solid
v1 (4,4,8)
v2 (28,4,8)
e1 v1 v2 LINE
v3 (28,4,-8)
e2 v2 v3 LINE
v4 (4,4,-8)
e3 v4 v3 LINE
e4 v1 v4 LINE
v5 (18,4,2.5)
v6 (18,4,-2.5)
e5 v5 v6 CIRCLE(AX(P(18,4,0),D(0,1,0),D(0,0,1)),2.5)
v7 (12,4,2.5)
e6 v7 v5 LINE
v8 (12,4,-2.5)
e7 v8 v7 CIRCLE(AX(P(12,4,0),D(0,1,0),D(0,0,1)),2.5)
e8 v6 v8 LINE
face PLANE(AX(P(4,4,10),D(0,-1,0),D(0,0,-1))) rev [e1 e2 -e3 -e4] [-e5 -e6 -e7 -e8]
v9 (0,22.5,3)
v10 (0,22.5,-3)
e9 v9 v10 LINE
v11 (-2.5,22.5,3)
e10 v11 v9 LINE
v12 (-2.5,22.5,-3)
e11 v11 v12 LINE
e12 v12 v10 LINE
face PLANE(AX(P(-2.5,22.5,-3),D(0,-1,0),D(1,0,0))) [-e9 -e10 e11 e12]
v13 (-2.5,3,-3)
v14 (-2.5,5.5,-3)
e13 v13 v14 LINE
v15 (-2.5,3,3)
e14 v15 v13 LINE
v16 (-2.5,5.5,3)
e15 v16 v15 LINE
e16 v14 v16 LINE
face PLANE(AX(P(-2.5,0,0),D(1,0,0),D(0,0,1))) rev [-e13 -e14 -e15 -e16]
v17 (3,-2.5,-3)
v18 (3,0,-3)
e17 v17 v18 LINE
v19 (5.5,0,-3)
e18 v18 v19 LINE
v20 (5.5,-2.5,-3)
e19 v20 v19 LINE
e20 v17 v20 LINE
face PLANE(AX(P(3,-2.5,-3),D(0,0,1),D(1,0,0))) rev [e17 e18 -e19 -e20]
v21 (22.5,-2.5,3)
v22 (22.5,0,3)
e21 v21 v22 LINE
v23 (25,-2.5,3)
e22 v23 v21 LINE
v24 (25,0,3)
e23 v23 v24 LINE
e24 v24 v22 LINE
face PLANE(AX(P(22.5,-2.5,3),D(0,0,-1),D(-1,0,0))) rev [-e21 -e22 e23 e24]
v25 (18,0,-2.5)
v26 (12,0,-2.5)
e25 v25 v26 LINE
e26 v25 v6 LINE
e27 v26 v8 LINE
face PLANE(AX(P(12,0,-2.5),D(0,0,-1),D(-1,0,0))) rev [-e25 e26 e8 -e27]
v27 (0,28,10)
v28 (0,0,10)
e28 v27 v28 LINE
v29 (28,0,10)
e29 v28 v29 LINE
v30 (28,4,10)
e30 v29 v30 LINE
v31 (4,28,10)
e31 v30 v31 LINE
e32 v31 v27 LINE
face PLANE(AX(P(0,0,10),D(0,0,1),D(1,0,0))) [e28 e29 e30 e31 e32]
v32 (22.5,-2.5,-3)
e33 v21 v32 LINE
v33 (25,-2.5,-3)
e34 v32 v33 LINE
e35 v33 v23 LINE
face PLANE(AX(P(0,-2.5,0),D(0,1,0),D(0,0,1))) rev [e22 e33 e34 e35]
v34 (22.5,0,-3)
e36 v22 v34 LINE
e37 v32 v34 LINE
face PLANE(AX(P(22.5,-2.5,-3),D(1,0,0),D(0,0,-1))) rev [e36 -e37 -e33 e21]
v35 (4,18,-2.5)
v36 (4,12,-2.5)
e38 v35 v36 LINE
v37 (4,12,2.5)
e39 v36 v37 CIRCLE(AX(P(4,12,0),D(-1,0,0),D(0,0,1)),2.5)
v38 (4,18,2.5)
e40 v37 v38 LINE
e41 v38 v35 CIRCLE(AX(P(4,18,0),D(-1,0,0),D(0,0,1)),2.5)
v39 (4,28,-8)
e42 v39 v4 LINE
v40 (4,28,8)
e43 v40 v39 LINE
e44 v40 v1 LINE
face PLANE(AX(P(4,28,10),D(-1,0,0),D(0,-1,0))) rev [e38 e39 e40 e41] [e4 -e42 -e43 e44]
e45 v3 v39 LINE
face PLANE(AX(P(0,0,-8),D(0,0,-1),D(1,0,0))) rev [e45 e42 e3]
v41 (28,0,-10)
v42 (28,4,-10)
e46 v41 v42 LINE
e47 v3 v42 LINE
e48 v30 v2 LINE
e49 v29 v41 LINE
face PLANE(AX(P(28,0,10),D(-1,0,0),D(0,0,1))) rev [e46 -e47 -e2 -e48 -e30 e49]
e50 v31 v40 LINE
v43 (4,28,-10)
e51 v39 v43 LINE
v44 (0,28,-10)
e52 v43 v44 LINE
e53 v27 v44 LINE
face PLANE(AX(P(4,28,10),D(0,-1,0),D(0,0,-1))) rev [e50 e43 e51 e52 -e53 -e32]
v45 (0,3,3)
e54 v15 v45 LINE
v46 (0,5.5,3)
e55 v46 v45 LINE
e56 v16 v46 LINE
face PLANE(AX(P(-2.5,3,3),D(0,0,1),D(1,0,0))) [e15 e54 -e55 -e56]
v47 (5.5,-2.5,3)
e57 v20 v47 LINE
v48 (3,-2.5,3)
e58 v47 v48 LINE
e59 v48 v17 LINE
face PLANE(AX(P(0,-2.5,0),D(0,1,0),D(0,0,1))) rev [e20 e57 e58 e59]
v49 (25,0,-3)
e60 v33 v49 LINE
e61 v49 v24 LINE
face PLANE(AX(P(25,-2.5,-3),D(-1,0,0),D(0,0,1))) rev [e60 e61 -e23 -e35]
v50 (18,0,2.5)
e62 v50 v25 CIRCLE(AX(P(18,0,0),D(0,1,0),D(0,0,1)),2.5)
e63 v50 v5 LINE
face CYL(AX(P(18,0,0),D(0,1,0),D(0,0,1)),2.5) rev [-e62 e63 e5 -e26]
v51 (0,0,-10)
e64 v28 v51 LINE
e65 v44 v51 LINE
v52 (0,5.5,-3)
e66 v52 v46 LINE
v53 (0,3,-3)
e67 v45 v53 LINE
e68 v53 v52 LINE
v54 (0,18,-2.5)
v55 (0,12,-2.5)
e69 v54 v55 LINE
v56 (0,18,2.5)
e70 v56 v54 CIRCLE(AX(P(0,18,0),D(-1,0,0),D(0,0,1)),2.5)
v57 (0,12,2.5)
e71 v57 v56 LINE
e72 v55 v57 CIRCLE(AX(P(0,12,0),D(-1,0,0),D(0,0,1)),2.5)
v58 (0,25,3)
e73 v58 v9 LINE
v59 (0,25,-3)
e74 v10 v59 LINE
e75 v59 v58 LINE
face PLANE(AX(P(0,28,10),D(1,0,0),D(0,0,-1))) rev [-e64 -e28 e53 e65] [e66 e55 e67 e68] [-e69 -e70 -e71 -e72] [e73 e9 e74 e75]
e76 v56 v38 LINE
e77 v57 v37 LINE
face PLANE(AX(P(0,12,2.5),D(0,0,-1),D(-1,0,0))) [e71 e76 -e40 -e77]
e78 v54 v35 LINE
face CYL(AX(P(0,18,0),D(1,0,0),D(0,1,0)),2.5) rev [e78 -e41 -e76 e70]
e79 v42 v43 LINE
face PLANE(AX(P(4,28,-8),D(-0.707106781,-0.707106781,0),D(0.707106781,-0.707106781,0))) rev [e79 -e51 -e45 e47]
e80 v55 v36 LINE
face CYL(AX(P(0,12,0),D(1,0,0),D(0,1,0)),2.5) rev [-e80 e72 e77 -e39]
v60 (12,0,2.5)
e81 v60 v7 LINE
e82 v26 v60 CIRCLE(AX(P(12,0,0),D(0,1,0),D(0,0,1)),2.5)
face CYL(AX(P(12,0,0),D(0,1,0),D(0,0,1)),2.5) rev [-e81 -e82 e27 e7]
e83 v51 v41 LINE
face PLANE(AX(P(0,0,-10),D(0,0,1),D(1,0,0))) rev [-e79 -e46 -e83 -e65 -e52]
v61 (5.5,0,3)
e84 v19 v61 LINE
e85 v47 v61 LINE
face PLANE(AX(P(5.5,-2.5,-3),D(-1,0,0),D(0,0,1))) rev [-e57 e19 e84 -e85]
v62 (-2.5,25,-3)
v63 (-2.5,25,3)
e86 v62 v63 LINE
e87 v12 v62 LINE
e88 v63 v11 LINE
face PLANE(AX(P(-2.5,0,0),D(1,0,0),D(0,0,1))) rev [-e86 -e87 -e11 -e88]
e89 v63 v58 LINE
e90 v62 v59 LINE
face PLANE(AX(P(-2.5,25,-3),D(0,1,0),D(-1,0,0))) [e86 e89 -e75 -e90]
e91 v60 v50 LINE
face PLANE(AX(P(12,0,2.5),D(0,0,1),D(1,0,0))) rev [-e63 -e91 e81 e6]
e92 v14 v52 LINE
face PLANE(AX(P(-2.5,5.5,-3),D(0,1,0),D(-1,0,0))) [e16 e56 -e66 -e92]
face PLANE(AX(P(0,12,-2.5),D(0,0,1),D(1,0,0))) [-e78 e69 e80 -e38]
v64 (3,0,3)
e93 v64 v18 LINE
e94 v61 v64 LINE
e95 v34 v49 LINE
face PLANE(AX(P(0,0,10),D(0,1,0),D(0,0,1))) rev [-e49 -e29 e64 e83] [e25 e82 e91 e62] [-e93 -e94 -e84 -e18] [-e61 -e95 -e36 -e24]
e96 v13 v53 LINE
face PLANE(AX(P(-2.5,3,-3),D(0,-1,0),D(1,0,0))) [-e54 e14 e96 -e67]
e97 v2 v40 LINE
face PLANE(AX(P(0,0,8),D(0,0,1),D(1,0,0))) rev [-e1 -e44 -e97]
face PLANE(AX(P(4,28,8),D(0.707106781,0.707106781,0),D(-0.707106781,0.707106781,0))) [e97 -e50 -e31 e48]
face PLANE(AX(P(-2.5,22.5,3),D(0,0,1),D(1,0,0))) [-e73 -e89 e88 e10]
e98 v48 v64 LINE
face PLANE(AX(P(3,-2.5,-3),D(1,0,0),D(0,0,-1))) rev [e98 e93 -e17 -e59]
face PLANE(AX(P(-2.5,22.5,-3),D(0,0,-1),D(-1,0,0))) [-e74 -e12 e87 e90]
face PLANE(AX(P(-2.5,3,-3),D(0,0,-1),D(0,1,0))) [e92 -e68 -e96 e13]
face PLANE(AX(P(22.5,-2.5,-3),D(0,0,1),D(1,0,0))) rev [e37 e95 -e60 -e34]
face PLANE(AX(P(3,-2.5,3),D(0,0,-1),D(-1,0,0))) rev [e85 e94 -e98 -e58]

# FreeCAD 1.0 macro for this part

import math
import FreeCAD as App
import Part
import Sketcher

V = App.Vector
Q = App.Units.Quantity


def add_polygon(sketch, points):
    """Adds a closed chain of lines whose ends are joined by coincident constraints."""
    first, n = sketch.GeometryCount, len(points)
    for a, b in zip(points, points[1:] + points[:1]):
        sketch.addGeometry(Part.LineSegment(App.Vector(*a, 0), App.Vector(*b, 0)), False)
    for i in range(n):
        sketch.addConstraint(Sketcher.Constraint("Coincident", first + i, 2, first + (i + 1) % n, 1))

doc = App.newDocument("Part")
body = doc.addObject("PartDesign::Body", "Body")

# Sketch on XY plane
sketch1 = body.newObject("Sketcher::SketchObject", "Sketch")
sketch1.AttachmentSupport = (doc.getObject("XY_Plane"), [""])
sketch1.MapMode = "FlatFace"
add_polygon(sketch1, [(0, 28), (0, 0), (28, 0), (28, 4), (4, 4), (4, 28)])  # lines 0-5
sketch1.addConstraint([
    Sketcher.Constraint("Vertical", 0),
    Sketcher.Constraint("Horizontal", 1),
    Sketcher.Constraint("Vertical", 2),
    Sketcher.Constraint("Horizontal", 3),
    Sketcher.Constraint("Vertical", 4),
    Sketcher.Constraint("Horizontal", 5),
    Sketcher.Constraint("Coincident", 0, 2, -1, 1),
    Sketcher.Constraint("Equal", 1, 0),
    Sketcher.Constraint("Equal", 5, 2),
    Sketcher.Constraint("DistanceX", 1, 1, 1, 2, Q("28 mm")),
    Sketcher.Constraint("DistanceX", 3, 2, 3, 1, Q("24 mm")),
])
pad1 = body.newObject("PartDesign::Pad", "Pad")
pad1.Profile = sketch1
pad1.Length = 20
pad1.Midplane = True

# Sketch on XY plane
sketch2 = body.newObject("Sketcher::SketchObject", "Sketch001")
sketch2.AttachmentSupport = (doc.getObject("XY_Plane"), [""])
sketch2.MapMode = "FlatFace"
sketch2.AttachmentOffset = App.Placement(V(0, 0, 10), App.Rotation())
add_polygon(sketch2, [(28, 4), (4, 28), (4, 4)])  # lines 0-2
sketch2.addConstraint([
    Sketcher.Constraint("Vertical", 1),
    Sketcher.Constraint("Horizontal", 2),
    Sketcher.Constraint("Equal", 2, 1),
    Sketcher.Constraint("DistanceX", 2, 1, 2, 2, Q("24 mm")),
    Sketcher.Constraint("DistanceX", -1, 1, 0, 2, Q("4 mm")),
    Sketcher.Constraint("DistanceY", -1, 1, 0, 2, Q("28 mm")),
])
pad2 = body.newObject("PartDesign::Pad", "Pad001")
pad2.Profile = sketch2
pad2.Length = 2
pad2.Reversed = True
doc.recompute()

mirrored = body.newObject("PartDesign::Mirrored", "Mirrored")
mirrored.Originals = [pad2]
mirrored.MirrorPlane = (doc.getObject("XY_Plane"), [""])
body.Tip = mirrored

# Sketch on XZ plane
sketch3 = body.newObject("Sketcher::SketchObject", "Sketch002")
sketch3.AttachmentSupport = (doc.getObject("XZ_Plane"), [""])
sketch3.MapMode = "FlatFace"
sketch3.AttachmentOffset = App.Placement(V(0, 0, -4), App.Rotation())
sketch3.addGeometry([
    Part.LineSegment(V(18, -2.5, 0), V(12, -2.5, 0)),
    Part.ArcOfCircle(Part.Circle(V(12, 0, 0), V(0, 0, 1), 2.5), math.radians(90), math.radians(270)),
    Part.LineSegment(V(12, 2.5, 0), V(18, 2.5, 0)),
    Part.ArcOfCircle(Part.Circle(V(18, 0, 0), V(0, 0, 1), 2.5), math.radians(-90), math.radians(90)),
], False)
sketch3.addConstraint([
    Sketcher.Constraint("Tangent", 0, 2, 1, 2),
    Sketcher.Constraint("Tangent", 1, 1, 2, 1),
    Sketcher.Constraint("Tangent", 2, 2, 3, 2),
    Sketcher.Constraint("Tangent", 3, 1, 0, 1),
    Sketcher.Constraint("Horizontal", 0),
    Sketcher.Constraint("Horizontal", 2),
    Sketcher.Constraint("PointOnObject", 1, 3, -1),
    Sketcher.Constraint("Radius", 1, Q("2.5 mm")),
    Sketcher.Constraint("DistanceX", 0, 2, 0, 1, Q("6 mm")),
    Sketcher.Constraint("DistanceX", -1, 1, 1, 3, Q("12 mm")),
])
pocket1 = body.newObject("PartDesign::Pocket", "Pocket")
pocket1.Profile = sketch3
pocket1.Type = "ThroughAll"
pocket1.Reversed = True

# Sketch on XZ plane
sketch4 = body.newObject("Sketcher::SketchObject", "Sketch003")
sketch4.AttachmentSupport = (doc.getObject("XZ_Plane"), [""])
sketch4.MapMode = "FlatFace"
add_polygon(sketch4, [(3, 3), (3, -3), (5.5, -3), (5.5, 3)])  # lines 0-3
add_polygon(sketch4, [(22.5, 3), (22.5, -3), (25, -3), (25, 3)])  # lines 4-7
sketch4.addConstraint([
    Sketcher.Constraint("Vertical", 0),
    Sketcher.Constraint("Horizontal", 1),
    Sketcher.Constraint("Vertical", 2),
    Sketcher.Constraint("Horizontal", 3),
    Sketcher.Constraint("Vertical", 4),
    Sketcher.Constraint("Horizontal", 5),
    Sketcher.Constraint("Vertical", 6),
    Sketcher.Constraint("Horizontal", 7),
    Sketcher.Constraint("Horizontal", 1, 2, 4, 2),
    Sketcher.Constraint("Horizontal", 3, 2, 6, 2),
    Sketcher.Constraint("Equal", 3, 5),
    Sketcher.Constraint("DistanceY", 0, 2, 0, 1, Q("6 mm")),
    Sketcher.Constraint("DistanceX", 1, 1, 1, 2, Q("2.5 mm")),
    Sketcher.Constraint("DistanceX", -1, 1, 0, 2, Q("3 mm")),
    Sketcher.Constraint("DistanceY", 0, 2, -1, 1, Q("3 mm")),
    Sketcher.Constraint("DistanceX", -1, 1, 5, 2, Q("25 mm")),
])
pad3 = body.newObject("PartDesign::Pad", "Pad002")
pad3.Profile = sketch4
pad3.Length = 2.5
doc.recompute()

datumplane = body.newObject("PartDesign::Plane", "DatumPlane")
datumplane.Placement = App.Placement(V(0, 0, 0), App.Rotation(V(0.707106781, 0.707106781, 0), V(0, 0, -1), V(-0.707106781, 0.707106781, 0), "ZXY"))
mirrored2 = body.newObject("PartDesign::Mirrored", "Mirrored001")
mirrored2.Originals = [pocket1, pad3]
mirrored2.MirrorPlane = (datumplane, [""])
body.Tip = mirrored2

doc.recompute()
